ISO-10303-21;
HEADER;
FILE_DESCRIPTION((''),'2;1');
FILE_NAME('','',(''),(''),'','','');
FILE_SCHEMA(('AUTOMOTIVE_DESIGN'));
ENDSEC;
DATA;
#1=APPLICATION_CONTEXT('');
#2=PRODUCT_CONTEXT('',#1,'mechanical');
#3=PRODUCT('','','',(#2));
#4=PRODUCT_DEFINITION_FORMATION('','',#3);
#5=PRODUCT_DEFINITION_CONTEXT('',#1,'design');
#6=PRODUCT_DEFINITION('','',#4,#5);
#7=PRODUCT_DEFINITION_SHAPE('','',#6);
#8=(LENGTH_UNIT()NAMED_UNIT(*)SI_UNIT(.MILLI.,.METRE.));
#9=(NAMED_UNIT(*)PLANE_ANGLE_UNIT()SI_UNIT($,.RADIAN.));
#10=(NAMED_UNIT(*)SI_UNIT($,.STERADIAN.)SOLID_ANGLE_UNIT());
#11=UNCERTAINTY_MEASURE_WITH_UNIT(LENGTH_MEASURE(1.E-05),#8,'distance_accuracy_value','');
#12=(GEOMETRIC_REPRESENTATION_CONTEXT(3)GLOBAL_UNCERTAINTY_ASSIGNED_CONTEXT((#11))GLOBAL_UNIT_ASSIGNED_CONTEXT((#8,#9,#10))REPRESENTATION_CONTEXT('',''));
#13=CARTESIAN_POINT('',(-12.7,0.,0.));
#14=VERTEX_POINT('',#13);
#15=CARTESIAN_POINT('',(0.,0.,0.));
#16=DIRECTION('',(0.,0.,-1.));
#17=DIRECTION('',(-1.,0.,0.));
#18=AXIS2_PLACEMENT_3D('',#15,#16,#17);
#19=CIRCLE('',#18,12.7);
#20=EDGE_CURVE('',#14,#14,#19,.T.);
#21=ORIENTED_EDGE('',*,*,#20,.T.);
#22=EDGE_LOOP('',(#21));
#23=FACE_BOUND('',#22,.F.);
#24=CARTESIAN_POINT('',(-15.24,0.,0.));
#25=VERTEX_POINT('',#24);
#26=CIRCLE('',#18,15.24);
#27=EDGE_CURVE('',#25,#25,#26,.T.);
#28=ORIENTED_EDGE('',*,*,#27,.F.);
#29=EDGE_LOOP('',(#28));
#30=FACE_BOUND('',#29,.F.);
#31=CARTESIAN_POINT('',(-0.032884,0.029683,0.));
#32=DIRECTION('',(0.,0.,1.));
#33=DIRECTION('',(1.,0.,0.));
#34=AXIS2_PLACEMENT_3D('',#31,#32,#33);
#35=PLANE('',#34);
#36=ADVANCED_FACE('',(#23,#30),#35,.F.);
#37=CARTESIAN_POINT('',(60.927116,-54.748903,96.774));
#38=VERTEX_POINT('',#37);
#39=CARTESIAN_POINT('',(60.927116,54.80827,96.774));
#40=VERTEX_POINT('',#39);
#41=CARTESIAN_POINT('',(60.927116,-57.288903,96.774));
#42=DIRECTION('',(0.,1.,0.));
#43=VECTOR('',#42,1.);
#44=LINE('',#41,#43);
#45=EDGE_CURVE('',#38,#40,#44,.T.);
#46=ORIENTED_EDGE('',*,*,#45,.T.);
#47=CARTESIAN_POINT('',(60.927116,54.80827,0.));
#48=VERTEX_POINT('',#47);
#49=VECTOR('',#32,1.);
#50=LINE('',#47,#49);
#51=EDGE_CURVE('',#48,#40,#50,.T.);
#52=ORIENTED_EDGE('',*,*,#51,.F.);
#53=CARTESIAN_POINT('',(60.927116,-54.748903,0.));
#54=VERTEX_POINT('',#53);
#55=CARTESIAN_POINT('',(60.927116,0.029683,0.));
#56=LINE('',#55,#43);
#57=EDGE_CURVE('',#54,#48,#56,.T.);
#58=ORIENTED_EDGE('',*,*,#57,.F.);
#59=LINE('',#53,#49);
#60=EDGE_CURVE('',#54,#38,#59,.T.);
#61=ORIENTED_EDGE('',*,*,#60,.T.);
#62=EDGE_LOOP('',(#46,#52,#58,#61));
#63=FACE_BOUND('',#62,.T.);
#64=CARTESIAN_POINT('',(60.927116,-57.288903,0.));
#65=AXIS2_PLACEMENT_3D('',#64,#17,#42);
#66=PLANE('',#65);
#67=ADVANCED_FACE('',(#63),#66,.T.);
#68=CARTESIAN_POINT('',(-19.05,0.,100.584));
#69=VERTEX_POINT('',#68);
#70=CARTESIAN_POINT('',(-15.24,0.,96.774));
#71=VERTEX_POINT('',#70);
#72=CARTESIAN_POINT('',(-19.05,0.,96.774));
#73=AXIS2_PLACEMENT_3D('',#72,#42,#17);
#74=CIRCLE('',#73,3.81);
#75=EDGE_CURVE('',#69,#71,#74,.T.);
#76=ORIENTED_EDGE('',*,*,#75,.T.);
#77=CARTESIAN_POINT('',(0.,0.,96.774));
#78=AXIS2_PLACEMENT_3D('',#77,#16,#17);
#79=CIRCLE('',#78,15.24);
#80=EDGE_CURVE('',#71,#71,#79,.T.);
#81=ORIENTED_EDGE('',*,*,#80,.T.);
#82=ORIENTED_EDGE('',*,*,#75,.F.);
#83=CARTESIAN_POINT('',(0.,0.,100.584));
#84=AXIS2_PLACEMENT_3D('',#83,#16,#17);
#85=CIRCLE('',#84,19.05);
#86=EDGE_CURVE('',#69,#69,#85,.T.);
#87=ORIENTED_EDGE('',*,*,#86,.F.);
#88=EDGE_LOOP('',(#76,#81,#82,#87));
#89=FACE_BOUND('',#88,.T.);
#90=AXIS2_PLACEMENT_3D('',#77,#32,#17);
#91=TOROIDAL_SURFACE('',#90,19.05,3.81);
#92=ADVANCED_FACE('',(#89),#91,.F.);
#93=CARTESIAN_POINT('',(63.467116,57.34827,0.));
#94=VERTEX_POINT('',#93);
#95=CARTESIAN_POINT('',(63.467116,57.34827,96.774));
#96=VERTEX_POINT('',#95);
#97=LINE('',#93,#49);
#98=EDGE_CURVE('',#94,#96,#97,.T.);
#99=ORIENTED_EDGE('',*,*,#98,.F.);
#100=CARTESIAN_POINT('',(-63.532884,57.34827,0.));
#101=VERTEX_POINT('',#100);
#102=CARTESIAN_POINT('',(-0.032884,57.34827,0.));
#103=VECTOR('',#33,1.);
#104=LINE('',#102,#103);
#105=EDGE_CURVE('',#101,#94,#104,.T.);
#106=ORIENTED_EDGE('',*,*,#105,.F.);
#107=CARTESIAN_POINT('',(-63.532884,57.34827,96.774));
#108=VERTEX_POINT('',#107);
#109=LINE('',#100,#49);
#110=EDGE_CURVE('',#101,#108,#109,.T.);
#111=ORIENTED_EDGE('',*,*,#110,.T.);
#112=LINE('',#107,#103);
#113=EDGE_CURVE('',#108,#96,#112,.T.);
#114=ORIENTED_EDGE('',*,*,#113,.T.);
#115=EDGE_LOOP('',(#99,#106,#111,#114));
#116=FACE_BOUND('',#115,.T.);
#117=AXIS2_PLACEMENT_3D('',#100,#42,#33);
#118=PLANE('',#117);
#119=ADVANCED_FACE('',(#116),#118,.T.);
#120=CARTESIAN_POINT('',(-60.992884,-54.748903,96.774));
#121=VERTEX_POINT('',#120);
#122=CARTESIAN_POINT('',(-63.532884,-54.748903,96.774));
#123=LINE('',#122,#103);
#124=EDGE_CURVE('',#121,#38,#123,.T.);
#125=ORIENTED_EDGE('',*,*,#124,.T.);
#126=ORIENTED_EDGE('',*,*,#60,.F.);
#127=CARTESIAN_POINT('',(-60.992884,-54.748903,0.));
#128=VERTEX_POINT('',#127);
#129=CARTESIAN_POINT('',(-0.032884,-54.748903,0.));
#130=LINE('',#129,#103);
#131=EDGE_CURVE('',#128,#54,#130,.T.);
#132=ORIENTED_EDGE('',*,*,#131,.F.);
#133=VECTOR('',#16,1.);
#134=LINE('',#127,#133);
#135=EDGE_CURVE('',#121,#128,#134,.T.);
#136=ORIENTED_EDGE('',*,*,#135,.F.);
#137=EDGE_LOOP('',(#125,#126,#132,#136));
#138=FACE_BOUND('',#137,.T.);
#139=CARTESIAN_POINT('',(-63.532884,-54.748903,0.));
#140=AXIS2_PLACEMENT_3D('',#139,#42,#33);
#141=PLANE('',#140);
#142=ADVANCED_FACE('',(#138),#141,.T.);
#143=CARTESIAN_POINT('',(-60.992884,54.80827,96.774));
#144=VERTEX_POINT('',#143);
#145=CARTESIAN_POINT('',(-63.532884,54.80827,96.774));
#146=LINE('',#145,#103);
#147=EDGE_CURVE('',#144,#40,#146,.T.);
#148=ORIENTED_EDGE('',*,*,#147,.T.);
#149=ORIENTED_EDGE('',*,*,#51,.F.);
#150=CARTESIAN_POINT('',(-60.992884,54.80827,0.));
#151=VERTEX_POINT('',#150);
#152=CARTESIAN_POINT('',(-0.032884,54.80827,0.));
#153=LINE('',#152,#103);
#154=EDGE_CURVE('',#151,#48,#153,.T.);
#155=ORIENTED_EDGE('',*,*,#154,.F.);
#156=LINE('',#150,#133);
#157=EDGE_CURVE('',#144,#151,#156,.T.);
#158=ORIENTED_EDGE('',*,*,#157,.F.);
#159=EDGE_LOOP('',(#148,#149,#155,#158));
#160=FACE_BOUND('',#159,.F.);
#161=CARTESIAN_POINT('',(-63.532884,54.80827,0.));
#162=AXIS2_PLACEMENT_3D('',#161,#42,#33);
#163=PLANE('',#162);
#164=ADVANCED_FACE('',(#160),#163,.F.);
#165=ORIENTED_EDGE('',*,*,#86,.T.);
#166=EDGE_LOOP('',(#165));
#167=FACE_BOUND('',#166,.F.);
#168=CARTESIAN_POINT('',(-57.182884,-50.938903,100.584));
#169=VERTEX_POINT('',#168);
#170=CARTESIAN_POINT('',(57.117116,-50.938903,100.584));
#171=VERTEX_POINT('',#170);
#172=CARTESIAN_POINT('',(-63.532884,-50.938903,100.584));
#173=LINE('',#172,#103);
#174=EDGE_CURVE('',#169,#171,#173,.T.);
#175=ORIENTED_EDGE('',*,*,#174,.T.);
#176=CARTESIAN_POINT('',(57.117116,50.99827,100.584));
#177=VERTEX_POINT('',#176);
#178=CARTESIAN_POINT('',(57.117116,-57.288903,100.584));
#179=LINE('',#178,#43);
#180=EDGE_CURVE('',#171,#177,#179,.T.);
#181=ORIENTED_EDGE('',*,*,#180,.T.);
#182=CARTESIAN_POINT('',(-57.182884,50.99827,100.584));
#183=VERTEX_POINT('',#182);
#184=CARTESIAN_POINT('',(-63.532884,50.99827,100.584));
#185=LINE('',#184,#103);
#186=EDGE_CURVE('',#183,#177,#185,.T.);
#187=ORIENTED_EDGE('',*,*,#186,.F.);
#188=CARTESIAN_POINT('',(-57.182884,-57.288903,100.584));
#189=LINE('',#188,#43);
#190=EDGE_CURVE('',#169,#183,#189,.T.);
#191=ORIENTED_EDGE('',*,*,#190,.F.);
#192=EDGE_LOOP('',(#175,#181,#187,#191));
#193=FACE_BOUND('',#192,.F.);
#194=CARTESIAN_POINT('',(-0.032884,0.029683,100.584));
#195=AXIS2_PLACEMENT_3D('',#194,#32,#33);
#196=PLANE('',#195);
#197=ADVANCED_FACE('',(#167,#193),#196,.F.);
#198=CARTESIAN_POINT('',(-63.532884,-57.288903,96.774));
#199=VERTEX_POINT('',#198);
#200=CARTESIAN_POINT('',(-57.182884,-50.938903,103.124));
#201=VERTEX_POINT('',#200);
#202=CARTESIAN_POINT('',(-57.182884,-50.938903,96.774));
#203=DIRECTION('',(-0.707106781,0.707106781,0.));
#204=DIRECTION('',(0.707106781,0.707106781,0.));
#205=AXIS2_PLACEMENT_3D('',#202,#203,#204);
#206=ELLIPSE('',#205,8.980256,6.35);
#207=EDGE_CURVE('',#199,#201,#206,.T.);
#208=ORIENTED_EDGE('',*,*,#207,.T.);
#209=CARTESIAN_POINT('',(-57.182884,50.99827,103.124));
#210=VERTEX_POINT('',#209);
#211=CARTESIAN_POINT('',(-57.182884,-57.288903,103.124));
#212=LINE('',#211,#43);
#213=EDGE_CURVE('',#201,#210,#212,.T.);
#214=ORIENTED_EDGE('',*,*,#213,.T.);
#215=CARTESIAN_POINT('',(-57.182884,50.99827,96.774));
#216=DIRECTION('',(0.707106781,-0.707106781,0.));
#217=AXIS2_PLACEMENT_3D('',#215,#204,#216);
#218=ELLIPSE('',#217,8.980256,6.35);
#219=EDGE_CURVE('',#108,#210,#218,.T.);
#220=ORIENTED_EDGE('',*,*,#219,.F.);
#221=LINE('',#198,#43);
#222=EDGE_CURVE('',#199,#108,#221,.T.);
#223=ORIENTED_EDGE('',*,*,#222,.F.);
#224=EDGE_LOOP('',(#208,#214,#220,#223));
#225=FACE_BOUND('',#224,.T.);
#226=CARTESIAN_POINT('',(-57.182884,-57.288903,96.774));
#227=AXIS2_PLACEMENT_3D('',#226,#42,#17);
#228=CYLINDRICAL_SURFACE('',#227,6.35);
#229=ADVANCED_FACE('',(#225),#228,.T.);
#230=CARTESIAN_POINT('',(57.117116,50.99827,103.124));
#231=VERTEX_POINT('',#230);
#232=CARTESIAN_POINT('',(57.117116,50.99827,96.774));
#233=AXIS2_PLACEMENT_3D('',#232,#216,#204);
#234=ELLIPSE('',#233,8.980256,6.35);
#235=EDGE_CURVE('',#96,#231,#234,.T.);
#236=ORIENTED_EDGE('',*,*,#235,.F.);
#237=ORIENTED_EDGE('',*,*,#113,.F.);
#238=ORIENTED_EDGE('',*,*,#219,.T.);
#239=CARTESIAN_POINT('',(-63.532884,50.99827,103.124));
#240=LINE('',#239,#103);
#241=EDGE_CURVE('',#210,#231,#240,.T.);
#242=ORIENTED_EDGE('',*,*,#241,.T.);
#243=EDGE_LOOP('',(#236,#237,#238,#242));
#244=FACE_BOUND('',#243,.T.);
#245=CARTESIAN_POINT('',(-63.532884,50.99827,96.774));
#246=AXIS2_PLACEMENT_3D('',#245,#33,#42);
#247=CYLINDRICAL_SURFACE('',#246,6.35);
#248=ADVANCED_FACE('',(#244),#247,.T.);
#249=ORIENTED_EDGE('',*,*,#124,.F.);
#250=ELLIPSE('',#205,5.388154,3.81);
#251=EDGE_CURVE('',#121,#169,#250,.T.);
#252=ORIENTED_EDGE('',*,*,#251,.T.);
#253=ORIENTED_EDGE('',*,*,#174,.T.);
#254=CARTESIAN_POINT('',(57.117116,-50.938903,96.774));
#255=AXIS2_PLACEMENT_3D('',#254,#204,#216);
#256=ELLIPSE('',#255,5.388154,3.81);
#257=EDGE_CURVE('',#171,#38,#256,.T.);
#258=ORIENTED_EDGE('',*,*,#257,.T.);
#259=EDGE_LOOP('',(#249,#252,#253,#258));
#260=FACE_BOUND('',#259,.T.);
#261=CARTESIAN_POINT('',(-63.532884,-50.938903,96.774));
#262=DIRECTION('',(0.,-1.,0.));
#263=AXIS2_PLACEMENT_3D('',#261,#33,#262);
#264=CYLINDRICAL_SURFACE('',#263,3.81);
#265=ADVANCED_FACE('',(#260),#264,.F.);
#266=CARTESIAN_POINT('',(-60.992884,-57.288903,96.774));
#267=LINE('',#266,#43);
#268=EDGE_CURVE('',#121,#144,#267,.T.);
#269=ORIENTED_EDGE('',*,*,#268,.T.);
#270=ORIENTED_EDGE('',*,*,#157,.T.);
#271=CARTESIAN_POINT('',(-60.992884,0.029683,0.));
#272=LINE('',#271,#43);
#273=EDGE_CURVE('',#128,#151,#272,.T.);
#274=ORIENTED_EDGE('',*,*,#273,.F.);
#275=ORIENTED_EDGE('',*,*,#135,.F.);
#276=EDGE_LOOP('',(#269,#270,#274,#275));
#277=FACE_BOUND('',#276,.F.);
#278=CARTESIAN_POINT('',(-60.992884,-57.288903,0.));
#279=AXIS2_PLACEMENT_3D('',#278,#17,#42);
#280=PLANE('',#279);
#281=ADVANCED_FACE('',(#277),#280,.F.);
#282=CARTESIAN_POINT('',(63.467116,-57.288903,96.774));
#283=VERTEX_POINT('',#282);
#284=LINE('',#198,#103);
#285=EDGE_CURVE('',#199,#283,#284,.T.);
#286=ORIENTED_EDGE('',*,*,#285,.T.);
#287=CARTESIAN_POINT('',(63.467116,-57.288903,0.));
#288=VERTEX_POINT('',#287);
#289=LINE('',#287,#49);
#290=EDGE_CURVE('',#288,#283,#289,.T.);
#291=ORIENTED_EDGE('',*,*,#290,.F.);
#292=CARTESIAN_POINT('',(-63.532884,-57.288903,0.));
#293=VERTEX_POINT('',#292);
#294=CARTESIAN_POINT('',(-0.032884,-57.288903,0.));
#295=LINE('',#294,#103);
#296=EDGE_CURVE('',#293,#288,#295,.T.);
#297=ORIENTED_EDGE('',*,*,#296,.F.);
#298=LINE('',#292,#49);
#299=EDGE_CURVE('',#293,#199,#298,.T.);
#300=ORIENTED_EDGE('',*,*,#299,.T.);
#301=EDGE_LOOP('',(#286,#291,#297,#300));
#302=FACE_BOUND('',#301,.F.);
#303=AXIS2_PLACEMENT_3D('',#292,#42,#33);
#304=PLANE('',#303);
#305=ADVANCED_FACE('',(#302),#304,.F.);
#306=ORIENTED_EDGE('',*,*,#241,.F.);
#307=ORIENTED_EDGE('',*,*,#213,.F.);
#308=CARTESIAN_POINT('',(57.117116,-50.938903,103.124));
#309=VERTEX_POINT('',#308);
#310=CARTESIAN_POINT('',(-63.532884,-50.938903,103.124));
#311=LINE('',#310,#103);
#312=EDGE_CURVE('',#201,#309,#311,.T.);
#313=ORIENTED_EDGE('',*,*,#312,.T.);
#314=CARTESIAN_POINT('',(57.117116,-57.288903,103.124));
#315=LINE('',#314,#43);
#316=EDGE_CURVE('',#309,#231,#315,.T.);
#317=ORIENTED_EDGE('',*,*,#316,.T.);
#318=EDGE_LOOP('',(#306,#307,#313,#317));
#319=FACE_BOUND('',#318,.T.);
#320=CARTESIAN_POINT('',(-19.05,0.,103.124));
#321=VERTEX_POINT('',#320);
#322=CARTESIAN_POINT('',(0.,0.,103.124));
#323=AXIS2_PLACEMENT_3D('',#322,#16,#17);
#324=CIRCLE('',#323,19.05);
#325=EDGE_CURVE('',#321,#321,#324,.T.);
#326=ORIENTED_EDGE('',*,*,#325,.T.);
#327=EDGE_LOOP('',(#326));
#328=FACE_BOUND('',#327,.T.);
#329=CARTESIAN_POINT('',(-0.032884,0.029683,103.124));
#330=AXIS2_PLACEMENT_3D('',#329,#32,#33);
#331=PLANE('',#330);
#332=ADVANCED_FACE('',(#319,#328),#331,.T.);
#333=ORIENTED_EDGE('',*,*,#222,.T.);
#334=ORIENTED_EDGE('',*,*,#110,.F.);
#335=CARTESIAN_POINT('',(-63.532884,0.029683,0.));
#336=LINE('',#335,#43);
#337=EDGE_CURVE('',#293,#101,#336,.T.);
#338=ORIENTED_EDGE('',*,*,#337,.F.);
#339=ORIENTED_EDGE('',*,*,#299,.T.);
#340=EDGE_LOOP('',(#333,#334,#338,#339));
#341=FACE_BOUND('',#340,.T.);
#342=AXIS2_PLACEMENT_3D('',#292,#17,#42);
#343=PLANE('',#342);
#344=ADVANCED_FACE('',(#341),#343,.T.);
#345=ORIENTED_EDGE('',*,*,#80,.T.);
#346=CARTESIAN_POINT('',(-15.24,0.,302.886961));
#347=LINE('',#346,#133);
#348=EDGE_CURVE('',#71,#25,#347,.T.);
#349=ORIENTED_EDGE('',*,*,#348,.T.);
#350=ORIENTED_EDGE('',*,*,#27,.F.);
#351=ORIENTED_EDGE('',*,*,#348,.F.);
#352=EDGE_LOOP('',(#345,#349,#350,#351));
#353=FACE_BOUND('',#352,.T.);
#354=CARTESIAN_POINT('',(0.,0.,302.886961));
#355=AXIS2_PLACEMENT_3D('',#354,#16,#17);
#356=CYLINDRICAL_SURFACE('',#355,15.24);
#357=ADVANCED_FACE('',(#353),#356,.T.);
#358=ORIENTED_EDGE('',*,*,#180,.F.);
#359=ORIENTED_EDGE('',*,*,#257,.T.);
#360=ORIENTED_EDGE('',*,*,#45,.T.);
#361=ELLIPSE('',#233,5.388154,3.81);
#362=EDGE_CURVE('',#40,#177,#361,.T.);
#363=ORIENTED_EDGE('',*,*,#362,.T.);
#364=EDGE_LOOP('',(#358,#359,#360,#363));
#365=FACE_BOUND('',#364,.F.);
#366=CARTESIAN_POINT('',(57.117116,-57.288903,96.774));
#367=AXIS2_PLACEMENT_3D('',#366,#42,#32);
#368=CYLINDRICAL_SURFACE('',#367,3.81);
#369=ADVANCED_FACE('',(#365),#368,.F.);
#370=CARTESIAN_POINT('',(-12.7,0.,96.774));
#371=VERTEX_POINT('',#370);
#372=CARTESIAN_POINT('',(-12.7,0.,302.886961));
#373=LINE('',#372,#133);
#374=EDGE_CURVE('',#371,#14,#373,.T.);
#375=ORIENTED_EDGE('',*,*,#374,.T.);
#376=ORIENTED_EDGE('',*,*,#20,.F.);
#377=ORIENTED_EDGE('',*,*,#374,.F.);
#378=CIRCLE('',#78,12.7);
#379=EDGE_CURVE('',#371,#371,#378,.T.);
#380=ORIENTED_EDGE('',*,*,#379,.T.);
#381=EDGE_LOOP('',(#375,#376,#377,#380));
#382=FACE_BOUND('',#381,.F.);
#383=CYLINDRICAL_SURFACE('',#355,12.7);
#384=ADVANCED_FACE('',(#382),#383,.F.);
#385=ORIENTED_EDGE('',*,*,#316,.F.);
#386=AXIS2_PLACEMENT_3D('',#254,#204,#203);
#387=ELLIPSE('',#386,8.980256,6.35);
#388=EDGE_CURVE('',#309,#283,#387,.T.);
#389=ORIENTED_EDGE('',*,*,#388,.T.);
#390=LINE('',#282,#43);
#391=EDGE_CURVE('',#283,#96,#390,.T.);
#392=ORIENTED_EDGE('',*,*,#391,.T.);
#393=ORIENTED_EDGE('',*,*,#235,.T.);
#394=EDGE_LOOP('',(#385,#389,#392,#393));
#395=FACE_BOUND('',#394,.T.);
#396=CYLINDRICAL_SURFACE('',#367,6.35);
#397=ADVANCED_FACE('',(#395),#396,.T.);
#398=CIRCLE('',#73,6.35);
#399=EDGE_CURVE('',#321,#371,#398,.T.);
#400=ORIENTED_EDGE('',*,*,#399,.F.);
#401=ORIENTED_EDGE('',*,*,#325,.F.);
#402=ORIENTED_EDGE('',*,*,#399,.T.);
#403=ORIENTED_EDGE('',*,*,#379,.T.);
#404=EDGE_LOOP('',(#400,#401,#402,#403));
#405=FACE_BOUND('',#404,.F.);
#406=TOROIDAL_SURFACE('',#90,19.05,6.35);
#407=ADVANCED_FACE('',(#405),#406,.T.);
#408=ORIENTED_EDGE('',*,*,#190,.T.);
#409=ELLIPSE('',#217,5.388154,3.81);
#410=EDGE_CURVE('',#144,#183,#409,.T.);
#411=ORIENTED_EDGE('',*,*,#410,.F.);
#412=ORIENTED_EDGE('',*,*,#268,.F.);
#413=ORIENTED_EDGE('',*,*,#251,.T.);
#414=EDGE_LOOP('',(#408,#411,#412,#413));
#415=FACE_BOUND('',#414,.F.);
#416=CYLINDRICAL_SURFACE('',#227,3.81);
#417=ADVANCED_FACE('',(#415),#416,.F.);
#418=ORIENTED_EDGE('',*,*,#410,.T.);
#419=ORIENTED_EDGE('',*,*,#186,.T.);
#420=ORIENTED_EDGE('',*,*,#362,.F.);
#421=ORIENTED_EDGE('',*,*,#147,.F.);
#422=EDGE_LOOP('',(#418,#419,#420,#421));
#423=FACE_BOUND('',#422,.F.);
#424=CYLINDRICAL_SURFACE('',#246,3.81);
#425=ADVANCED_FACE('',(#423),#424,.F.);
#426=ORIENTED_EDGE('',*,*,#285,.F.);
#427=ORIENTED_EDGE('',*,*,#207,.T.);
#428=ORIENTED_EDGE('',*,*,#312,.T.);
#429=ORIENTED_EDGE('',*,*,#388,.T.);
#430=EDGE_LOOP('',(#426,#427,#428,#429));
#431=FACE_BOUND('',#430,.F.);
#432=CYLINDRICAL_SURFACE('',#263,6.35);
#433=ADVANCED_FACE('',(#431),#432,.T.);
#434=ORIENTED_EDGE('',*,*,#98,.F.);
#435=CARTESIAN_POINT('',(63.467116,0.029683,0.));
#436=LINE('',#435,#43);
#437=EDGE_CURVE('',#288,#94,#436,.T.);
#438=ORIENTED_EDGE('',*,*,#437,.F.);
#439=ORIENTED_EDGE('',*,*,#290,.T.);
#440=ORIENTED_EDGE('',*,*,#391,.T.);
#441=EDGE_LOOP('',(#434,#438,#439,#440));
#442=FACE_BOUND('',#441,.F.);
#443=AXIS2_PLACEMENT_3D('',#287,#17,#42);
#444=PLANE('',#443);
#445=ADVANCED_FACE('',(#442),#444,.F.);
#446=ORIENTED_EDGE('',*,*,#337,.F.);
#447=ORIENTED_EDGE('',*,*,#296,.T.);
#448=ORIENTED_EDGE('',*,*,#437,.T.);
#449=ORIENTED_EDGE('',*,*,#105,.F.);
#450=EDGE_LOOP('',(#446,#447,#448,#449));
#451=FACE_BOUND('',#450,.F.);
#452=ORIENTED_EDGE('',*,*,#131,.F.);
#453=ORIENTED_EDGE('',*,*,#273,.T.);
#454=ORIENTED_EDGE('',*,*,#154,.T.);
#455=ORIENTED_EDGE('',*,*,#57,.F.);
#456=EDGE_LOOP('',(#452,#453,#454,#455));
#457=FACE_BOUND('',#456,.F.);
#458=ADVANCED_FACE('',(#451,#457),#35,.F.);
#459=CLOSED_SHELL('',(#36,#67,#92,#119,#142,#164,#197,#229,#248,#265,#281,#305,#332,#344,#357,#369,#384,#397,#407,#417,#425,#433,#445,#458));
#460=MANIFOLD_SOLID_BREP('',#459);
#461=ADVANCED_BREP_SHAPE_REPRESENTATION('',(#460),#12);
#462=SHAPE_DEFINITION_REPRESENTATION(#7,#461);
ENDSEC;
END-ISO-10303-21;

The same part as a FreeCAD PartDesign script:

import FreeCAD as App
import Part
import Sketcher
Q = App.Units.Quantity


def edges_at(feature, points):
    """Names of the edges that pass closest to the given points."""
    edges = feature.Shape.Edges
    near = lambda p: min(range(len(edges)), key=lambda i: edges[i].distToShape(Part.Vertex(*p))[0])
    return sorted({f"Edge{near(p) + 1}" for p in points})


def faces_at(feature, points):
    """Names of the faces that lie closest to the given points."""
    faces = feature.Shape.Faces
    near = lambda p: min(range(len(faces)), key=lambda i: faces[i].distToShape(Part.Vertex(*p))[0])
    return sorted({f"Face{near(p) + 1}" for p in points})

doc = App.newDocument("Part")
params = doc.addObject("Spreadsheet::Sheet", "Params")
for row, (alias, value) in enumerate([
    ("sketch1_width", "5 in"),
    ("pad1_length", "4.06 in"),
    ("sketch2_diameter", "1 in"),
    ("hole_diameter", "1 in"),
    ("fillet_radius", "0.25 in"),
    ("thickness_wall", "0.1 in"),
], start=1):
    params.set(f"A{row}", alias)
    params.set(f"B{row}", "=" + value)
    params.setAlias(f"B{row}", alias)

body = doc.addObject("PartDesign::Body", "Body")

# Sketch on XY plane
sketch1 = body.newObject("Sketcher::SketchObject", "Sketch")
sketch1.AttachmentSupport = (doc.getObject("XY_Plane"), [""])
sketch1.MapMode = "FlatFace"
sketch1.addGeometry([
    Part.LineSegment(App.Vector(-64, 57, 0), App.Vector(-64, -57, 0)),
    Part.LineSegment(App.Vector(-64, -57, 0), App.Vector(63, -57, 0)),
    Part.LineSegment(App.Vector(63, -57, 0), App.Vector(63, 57, 0)),
    Part.LineSegment(App.Vector(63, 57, 0), App.Vector(-64, 57, 0)),
], False)
sketch1.addConstraint([
    Sketcher.Constraint("Coincident", 0, 2, 1, 1),
    Sketcher.Constraint("Coincident", 1, 2, 2, 1),
    Sketcher.Constraint("Coincident", 2, 2, 3, 1),
    Sketcher.Constraint("Coincident", 3, 2, 0, 1),
    Sketcher.Constraint("Vertical", 0),
    Sketcher.Constraint("Horizontal", 1),
    Sketcher.Constraint("Vertical", 2),
    Sketcher.Constraint("Horizontal", 3),
    Sketcher.Constraint("DistanceX", 1, 1, 1, 2, Q("5 in")),
    Sketcher.Constraint("DistanceY", 0, 2, 0, 1, Q("114.637172 mm")),
    Sketcher.Constraint("DistanceY", -1, 1, 2, 2, Q("57.34827 mm")),
    Sketcher.Constraint("DistanceX", 0, 2, -1, 1, Q("63.532884 mm")),
])
sketch1.setExpression("Constraints[8]", "Params.sketch1_width")
pad1 = body.newObject("PartDesign::Pad", "Pad")
pad1.Profile = sketch1
pad1.setExpression("Length", "Params.pad1_length")

# Sketch on XY plane
sketch2 = body.newObject("Sketcher::SketchObject", "Sketch001")
sketch2.AttachmentSupport = (doc.getObject("XY_Plane"), [""])
sketch2.MapMode = "FlatFace"
sketch2.AttachmentOffset = App.Placement(App.Vector(0, 0, 4.06 * 25.4), App.Rotation())
sketch2.addGeometry(Part.Circle(App.Vector(0, 0, 0), App.Vector(0, 0, 1), 13), False)
sketch2.addConstraint([
    Sketcher.Constraint("Coincident", 0, 3, -1, 1),
    Sketcher.Constraint("Diameter", 0, Q("1 in")),
])
sketch2.setExpression("Constraints[1]", "Params.sketch2_diameter")
doc.recompute()
hole = body.newObject("PartDesign::Hole", "Hole")
hole.Profile = sketch2
hole.ThreadType = "None"
hole.setExpression("Diameter", "Params.hole_diameter")
hole.DepthType = "ThroughAll"
doc.recompute()

fillet = body.newObject("PartDesign::Fillet", "Fillet")
fillet.Base = (hole, edges_at(hole, [
    (-0.033, 57.348, 103.124),
    (63.467, 0.03, 103.124),
    (-63.533, 0.03, 103.124),
    (-0.033, -57.289, 103.124),
    (12.7, 0, 103.124),
]))
fillet.setExpression("Radius", "Params.fillet_radius")
doc.recompute()

thickness = body.newObject("PartDesign::Thickness", "Thickness")
thickness.Base = (fillet, faces_at(fillet, [(-25.433, -22.898, 0)]))
thickness.setExpression("Value", "Params.thickness_wall")
thickness.Reversed = True
thickness.Join = "Arc"

doc.recompute()
